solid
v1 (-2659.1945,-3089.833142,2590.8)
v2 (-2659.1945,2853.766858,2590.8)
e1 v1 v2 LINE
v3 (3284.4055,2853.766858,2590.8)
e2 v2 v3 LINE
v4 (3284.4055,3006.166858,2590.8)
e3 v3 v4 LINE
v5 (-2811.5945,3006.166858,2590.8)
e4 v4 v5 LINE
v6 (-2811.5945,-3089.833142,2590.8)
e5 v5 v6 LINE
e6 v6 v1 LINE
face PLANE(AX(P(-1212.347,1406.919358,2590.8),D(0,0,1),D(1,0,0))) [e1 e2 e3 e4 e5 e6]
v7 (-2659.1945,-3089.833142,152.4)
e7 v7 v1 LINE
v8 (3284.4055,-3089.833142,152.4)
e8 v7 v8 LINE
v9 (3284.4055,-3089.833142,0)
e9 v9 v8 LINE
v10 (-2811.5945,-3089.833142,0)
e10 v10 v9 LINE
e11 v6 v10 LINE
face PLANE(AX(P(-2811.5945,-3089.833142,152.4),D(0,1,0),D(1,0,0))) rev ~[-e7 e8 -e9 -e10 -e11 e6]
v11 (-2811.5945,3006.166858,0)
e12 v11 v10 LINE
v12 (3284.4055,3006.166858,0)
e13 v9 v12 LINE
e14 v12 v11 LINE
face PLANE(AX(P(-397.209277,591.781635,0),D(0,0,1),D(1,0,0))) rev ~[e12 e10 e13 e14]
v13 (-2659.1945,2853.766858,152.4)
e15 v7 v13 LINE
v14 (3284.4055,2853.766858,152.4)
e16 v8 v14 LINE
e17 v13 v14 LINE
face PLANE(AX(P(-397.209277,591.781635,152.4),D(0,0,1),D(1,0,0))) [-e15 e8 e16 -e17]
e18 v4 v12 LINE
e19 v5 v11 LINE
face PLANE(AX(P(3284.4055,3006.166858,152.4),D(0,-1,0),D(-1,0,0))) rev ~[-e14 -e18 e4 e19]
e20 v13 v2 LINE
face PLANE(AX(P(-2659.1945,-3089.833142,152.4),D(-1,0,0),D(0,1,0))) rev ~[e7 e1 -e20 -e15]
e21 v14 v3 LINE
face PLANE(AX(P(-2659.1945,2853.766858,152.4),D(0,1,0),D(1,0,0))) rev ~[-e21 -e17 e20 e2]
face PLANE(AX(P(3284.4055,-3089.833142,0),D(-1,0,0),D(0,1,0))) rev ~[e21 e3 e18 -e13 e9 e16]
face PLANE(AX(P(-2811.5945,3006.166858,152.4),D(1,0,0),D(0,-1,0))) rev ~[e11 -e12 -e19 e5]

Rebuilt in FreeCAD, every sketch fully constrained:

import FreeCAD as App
import Part
import Sketcher
from FreeCAD import Vector
Q = App.Units.Quantity

doc = App.newDocument("Part")
params = doc.addObject("Spreadsheet::Sheet", "Params")
for row, (alias, value) in enumerate([
    ("sketch1_width", "240 in"),
    ("pad1_length", "6 in"),
    ("sketch2_width", "6 in"),
    ("sketch2_width2", "234 in"),
    ("pad2_length", "96 in"),
], start=1):
    params.set(f"A{row}", alias)
    params.set(f"B{row}", "=" + value)
    params.setAlias(f"B{row}", alias)

body = doc.addObject("PartDesign::Body", "Body")

# Sketch on XY plane
sketch1 = doc.addObject("Sketcher::SketchObject", "Sketch")
body.addObject(sketch1)
sketch1.AttachmentSupport = (doc.XY_Plane, [""])
sketch1.MapMode = "FlatFace"
sketch1.addGeometry([
    Part.LineSegment(Vector(3284.4055, 3006.166858, 0), Vector(-2811.5945, 3006.166858, 0)),
    Part.LineSegment(Vector(-2811.5945, 3006.166858, 0), Vector(-2811.5945, -3089.833142, 0)),
    Part.LineSegment(Vector(-2811.5945, -3089.833142, 0), Vector(3284.4055, -3089.833142, 0)),
    Part.LineSegment(Vector(3284.4055, -3089.833142, 0), Vector(3284.4055, 3006.166858, 0)),
], False)
sketch1.addConstraint([
    Sketcher.Constraint("Coincident", 0, 2, 1, 1),
    Sketcher.Constraint("Coincident", 1, 2, 2, 1),
    Sketcher.Constraint("Coincident", 2, 2, 3, 1),
    Sketcher.Constraint("Coincident", 3, 2, 0, 1),
    Sketcher.Constraint("Horizontal", 0),
    Sketcher.Constraint("Vertical", 1),
    Sketcher.Constraint("Horizontal", 2),
    Sketcher.Constraint("Vertical", 3),
    Sketcher.Constraint("Equal", 2, 1),
    Sketcher.Constraint("DistanceX", 0, 2, 0, 1, Q("240 in")),
    Sketcher.Constraint("DistanceX", 0, 2, -1, 1, 2811.5945),
    Sketcher.Constraint("DistanceY", -1, 1, 0, 2, 3006.166858),
])
sketch1.setExpression("Constraints[9]", "Params.sketch1_width")
pad1 = doc.addObject("PartDesign::Pad", "Pad")
body.addObject(pad1)
pad1.Profile = sketch1
pad1.setExpression("Length", "Params.pad1_length")

# Sketch on XY plane
sketch2 = doc.addObject("Sketcher::SketchObject", "Sketch001")
body.addObject(sketch2)
sketch2.AttachmentSupport = (doc.XY_Plane, [""])
sketch2.MapMode = "FlatFace"
sketch2.AttachmentOffset = App.Placement(Vector(0, 0, 6 * 25.4), App.Rotation())
sketch2.addGeometry([
    Part.LineSegment(Vector(-2811.5945, -3089.833142, 0), Vector(-2659.1945, -3089.833142, 0)),  # 0
    Part.LineSegment(Vector(-2659.1945, -3089.833142, 0), Vector(-2659.1945, 2853.766858, 0)),  # 1
    Part.LineSegment(Vector(-2659.1945, 2853.766858, 0), Vector(3284.4055, 2853.766858, 0)),  # 2
    Part.LineSegment(Vector(3284.4055, 2853.766858, 0), Vector(3284.4055, 3006.166858, 0)),  # 3
    Part.LineSegment(Vector(3284.4055, 3006.166858, 0), Vector(-2811.5945, 3006.166858, 0)),  # 4
    Part.LineSegment(Vector(-2811.5945, 3006.166858, 0), Vector(-2811.5945, -3089.833142, 0)),  # 5
], False)
sketch2.addConstraint([
    Sketcher.Constraint("Coincident", 0, 2, 1, 1),
    Sketcher.Constraint("Coincident", 1, 2, 2, 1),
    Sketcher.Constraint("Coincident", 2, 2, 3, 1),
    Sketcher.Constraint("Coincident", 3, 2, 4, 1),
    Sketcher.Constraint("Coincident", 4, 2, 5, 1),
    Sketcher.Constraint("Coincident", 5, 2, 0, 1),
    Sketcher.Constraint("Horizontal", 0),
    Sketcher.Constraint("Vertical", 1),
    Sketcher.Constraint("Horizontal", 2),
    Sketcher.Constraint("Vertical", 3),
    Sketcher.Constraint("Horizontal", 4),
    Sketcher.Constraint("Vertical", 5),
    Sketcher.Constraint("Equal", 2, 1),
    Sketcher.Constraint("Equal", 0, 3),
    Sketcher.Constraint("DistanceX", 0, 1, 0, 2, Q("6 in")),
    Sketcher.Constraint("DistanceX", 2, 1, 2, 2, Q("234 in")),
    Sketcher.Constraint("DistanceX", 0, 2, -1, 1, 2659.1945),
    Sketcher.Constraint("DistanceY", 0, 2, -1, 1, 3089.833142),
])
sketch2.setExpression("Constraints[14]", "Params.sketch2_width")
sketch2.setExpression("Constraints[15]", "Params.sketch2_width2")
pad2 = doc.addObject("PartDesign::Pad", "Pad001")
body.addObject(pad2)
pad2.Profile = sketch2
pad2.setExpression("Length", "Params.pad2_length")

doc.recompute()
